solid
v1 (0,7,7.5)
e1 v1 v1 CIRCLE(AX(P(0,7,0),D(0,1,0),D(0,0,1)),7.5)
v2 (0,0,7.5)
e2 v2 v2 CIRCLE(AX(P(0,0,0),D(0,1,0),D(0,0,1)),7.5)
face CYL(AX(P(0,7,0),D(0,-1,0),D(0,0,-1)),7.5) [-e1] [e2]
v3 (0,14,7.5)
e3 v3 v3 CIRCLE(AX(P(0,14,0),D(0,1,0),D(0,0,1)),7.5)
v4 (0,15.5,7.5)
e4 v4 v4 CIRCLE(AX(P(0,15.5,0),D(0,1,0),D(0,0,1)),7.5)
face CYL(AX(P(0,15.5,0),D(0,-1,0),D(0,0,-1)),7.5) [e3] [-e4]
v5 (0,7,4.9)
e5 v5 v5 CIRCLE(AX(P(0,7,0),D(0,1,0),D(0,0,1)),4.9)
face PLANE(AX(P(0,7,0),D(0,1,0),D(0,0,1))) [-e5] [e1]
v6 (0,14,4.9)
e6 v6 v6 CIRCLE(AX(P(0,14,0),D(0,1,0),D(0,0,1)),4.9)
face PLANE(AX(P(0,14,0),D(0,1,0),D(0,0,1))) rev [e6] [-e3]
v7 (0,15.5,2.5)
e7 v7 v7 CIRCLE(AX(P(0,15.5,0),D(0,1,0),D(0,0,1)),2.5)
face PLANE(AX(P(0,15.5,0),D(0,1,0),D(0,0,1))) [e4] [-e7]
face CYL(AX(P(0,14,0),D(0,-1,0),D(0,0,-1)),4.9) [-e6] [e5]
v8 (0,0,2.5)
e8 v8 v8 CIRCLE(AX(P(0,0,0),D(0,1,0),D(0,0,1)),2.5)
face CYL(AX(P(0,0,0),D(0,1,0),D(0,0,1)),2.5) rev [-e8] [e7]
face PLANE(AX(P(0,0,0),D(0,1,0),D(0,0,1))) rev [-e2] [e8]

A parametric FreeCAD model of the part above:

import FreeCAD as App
import Part
import Sketcher
Q = App.Units.Quantity

doc = App.newDocument("Part")
body = doc.addObject("PartDesign::Body", "Body")

# Sketch on XZ plane
sketch1 = doc.addObject("Sketcher::SketchObject", "Sketch")
body.addObject(sketch1)
sketch1.AttachmentSupport = (doc.XZ_Plane, [""])
sketch1.MapMode = "FlatFace"
sketch1.addGeometry(Part.Circle(App.Vector(0, 0, 0), App.Vector(0, 0, 1), 8), False)
sketch1.addConstraint([
    Sketcher.Constraint("Coincident", 0, 3, -1, 1),
    Sketcher.Constraint("Diameter", 0, Q("15 mm")),
])
pad1 = doc.addObject("PartDesign::Pad", "Pad")
body.addObject(pad1)
pad1.Profile = sketch1
pad1.Length = 7
pad1.Reversed = True

# Sketch on XZ plane
sketch2 = doc.addObject("Sketcher::SketchObject", "Sketch001")
body.addObject(sketch2)
sketch2.AttachmentSupport = (doc.XZ_Plane, [""])
sketch2.MapMode = "FlatFace"
sketch2.AttachmentOffset = App.Placement(App.Vector(0, 0, -7), App.Rotation())
sketch2.addGeometry(Part.Circle(App.Vector(0, 0, 0), App.Vector(0, 0, 1), 4.9), False)
sketch2.addConstraint([
    Sketcher.Constraint("Coincident", 0, 3, -1, 1),
    Sketcher.Constraint("Diameter", 0, Q("9.8 mm")),
])
pad2 = doc.addObject("PartDesign::Pad", "Pad001")
body.addObject(pad2)
pad2.Profile = sketch2
pad2.Length = 7
pad2.Reversed = True

# Sketch on XZ plane
sketch3 = doc.addObject("Sketcher::SketchObject", "Sketch002")
body.addObject(sketch3)
sketch3.AttachmentSupport = (doc.XZ_Plane, [""])
sketch3.MapMode = "FlatFace"
sketch3.AttachmentOffset = App.Placement(App.Vector(0, 0, -14), App.Rotation())
sketch3.addGeometry(Part.Circle(App.Vector(0, 0, 0), App.Vector(0, 0, 1), 8), False)
sketch3.addConstraint([
    Sketcher.Constraint("Coincident", 0, 3, -1, 1),
    Sketcher.Constraint("Diameter", 0, Q("15 mm")),
])
pad3 = doc.addObject("PartDesign::Pad", "Pad002")
body.addObject(pad3)
pad3.Profile = sketch3
pad3.Length = 1.5
pad3.Reversed = True

# Sketch on XZ plane
sketch4 = doc.addObject("Sketcher::SketchObject", "Sketch003")
body.addObject(sketch4)
sketch4.AttachmentSupport = (doc.XZ_Plane, [""])
sketch4.MapMode = "FlatFace"
sketch4.AttachmentOffset = App.Placement(App.Vector(0, 0, -15.5), App.Rotation())
sketch4.addGeometry(Part.Circle(App.Vector(0, 0, 0), App.Vector(0, 0, 1), 2.5), False)
sketch4.addConstraint([
    Sketcher.Constraint("Coincident", 0, 3, -1, 1),
    Sketcher.Constraint("Diameter", 0, Q("5 mm")),
])
pocket1 = doc.addObject("PartDesign::Pocket", "Pocket")
body.addObject(pocket1)
pocket1.Profile = sketch4
pocket1.Type = "ThroughAll"
pocket1.Reversed = True

doc.recompute()
